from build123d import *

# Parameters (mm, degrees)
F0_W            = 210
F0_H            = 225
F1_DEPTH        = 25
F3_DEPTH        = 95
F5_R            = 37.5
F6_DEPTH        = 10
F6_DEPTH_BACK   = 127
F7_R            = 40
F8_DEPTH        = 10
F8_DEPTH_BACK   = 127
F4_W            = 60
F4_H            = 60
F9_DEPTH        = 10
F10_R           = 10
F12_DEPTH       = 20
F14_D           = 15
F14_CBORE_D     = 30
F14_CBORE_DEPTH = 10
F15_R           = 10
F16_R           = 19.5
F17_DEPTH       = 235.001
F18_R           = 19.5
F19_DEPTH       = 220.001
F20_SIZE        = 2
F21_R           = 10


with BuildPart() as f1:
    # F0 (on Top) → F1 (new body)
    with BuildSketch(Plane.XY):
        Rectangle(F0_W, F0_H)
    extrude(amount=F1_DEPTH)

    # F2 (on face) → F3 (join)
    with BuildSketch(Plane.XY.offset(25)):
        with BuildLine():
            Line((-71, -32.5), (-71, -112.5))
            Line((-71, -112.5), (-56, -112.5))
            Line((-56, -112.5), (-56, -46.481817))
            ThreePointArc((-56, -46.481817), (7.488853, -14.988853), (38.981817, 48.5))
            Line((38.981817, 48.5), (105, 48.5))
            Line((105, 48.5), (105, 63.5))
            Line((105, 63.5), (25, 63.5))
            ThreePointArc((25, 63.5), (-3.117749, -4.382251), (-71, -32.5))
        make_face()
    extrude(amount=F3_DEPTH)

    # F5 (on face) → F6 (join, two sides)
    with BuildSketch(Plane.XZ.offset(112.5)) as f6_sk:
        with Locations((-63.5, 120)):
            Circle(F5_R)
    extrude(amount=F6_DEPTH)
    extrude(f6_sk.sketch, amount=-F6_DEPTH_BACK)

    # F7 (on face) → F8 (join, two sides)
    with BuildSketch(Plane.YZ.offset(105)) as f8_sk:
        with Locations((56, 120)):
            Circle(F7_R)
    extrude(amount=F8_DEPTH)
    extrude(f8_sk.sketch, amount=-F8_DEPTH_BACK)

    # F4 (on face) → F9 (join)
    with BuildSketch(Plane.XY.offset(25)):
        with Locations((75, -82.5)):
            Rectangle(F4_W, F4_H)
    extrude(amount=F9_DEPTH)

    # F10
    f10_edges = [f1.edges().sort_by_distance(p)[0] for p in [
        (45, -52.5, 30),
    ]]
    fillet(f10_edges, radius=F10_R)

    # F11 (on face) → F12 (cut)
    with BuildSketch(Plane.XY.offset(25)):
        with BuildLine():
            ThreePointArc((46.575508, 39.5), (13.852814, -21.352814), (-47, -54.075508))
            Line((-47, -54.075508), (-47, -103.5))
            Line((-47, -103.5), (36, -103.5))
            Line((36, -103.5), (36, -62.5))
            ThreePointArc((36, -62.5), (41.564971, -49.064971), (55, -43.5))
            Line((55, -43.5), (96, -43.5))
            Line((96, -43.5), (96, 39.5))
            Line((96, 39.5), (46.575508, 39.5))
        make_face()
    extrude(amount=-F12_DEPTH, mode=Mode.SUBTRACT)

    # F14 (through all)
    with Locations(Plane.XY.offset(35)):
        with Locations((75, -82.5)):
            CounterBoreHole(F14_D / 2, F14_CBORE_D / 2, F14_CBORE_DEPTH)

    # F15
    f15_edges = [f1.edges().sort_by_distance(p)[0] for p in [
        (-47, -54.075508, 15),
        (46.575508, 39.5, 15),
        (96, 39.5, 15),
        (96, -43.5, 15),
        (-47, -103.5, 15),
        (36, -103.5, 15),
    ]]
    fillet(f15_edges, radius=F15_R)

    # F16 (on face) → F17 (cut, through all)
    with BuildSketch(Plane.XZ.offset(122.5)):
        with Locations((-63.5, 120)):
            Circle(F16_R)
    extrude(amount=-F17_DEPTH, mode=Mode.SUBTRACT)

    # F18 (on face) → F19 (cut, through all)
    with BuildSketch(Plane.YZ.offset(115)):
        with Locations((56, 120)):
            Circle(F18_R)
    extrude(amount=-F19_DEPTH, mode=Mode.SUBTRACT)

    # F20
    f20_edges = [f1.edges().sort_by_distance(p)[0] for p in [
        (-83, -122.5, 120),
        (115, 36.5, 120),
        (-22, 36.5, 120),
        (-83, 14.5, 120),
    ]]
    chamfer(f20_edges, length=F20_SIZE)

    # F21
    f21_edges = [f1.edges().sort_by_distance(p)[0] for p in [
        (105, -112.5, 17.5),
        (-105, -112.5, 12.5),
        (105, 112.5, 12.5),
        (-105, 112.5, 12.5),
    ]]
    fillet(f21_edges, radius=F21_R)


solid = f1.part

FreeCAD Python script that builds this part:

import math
import FreeCAD as App
import Part
import Sketcher


def edges_at(feature, points):
    """Names of the edges that pass closest to the given points."""
    edges = feature.Shape.Edges
    near = lambda p: min(range(len(edges)), key=lambda i: edges[i].distToShape(Part.Vertex(*p))[0])
    return sorted({f"Edge{near(p) + 1}" for p in points})

doc = App.newDocument("Part")
body = doc.addObject("PartDesign::Body", "Body")

sketch1 = body.newObject("Sketcher::SketchObject", "Sketch")
sketch1.AttachmentSupport = (doc.getObject("XY_Plane"), [""])
sketch1.MapMode = "FlatFace"
sketch1.addGeometry([
    Part.LineSegment(App.Vector(-105, 112.5, 0), App.Vector(-105, -112.5, 0)),
    Part.LineSegment(App.Vector(-105, -112.5, 0), App.Vector(105, -112.5, 0)),
    Part.LineSegment(App.Vector(105, -112.5, 0), App.Vector(105, 112.5, 0)),
    Part.LineSegment(App.Vector(105, 112.5, 0), App.Vector(-105, 112.5, 0)),
], False)
sketch1.addConstraint([
    Sketcher.Constraint("Coincident", 0, 2, 1, 1),
    Sketcher.Constraint("Coincident", 1, 2, 2, 1),
    Sketcher.Constraint("Coincident", 2, 2, 3, 1),
    Sketcher.Constraint("Coincident", 3, 2, 0, 1),
    Sketcher.Constraint("Vertical", 0),
    Sketcher.Constraint("Horizontal", 1),
    Sketcher.Constraint("Vertical", 2),
    Sketcher.Constraint("Horizontal", 3),
    Sketcher.Constraint("Symmetric", 0, 2, 2, 2, -1, 1),
    Sketcher.Constraint("DistanceX", 1, 1, 1, 2, 210.0),
    Sketcher.Constraint("DistanceY", 0, 2, 0, 1, 225.0),
])
pad1 = body.newObject("PartDesign::Pad", "Pad")
pad1.Profile = sketch1
pad1.Length = 25

sketch2 = body.newObject("Sketcher::SketchObject", "Sketch001")
sketch2.AttachmentSupport = (doc.getObject("XY_Plane"), [""])
sketch2.MapMode = "FlatFace"
sketch2.AttachmentOffset = App.Placement(App.Vector(0, 0, 25), App.Rotation())
sketch2.addGeometry([
    Part.LineSegment(App.Vector(-71, -32.5, 0), App.Vector(-71, -112.5, 0)),
    Part.LineSegment(App.Vector(-71, -112.5, 0), App.Vector(-56, -112.5, 0)),
    Part.LineSegment(App.Vector(-56, -112.5, 0), App.Vector(-56, -46.481817, 0)),
    Part.ArcOfCircle(Part.Circle(App.Vector(-71, 63.5, 0), App.Vector(0, 0, 1), 111), math.radians(-82.233566), math.radians(-7.766434)),
    Part.LineSegment(App.Vector(38.981817, 48.5, 0), App.Vector(105, 48.5, 0)),
    Part.LineSegment(App.Vector(105, 48.5, 0), App.Vector(105, 63.5, 0)),
    Part.LineSegment(App.Vector(105, 63.5, 0), App.Vector(25, 63.5, 0)),
    Part.ArcOfCircle(Part.Circle(App.Vector(-71, 63.5, 0), App.Vector(0, 0, 1), 96), math.radians(-90), math.radians(0)),
], False)
sketch2.addConstraint([
    Sketcher.Constraint("Coincident", 0, 2, 1, 1),
    Sketcher.Constraint("Coincident", 1, 2, 2, 1),
    Sketcher.Constraint("Coincident", 2, 2, 3, 1),
    Sketcher.Constraint("Coincident", 3, 2, 4, 1),
    Sketcher.Constraint("Coincident", 4, 2, 5, 1),
    Sketcher.Constraint("Coincident", 5, 2, 6, 1),
    Sketcher.Constraint("Coincident", 6, 2, 7, 2),
    Sketcher.Constraint("Coincident", 7, 1, 0, 1),
    Sketcher.Constraint("Vertical", 0),
    Sketcher.Constraint("Horizontal", 1),
    Sketcher.Constraint("Vertical", 2),
    Sketcher.Constraint("Horizontal", 4),
    Sketcher.Constraint("Vertical", 5),
    Sketcher.Constraint("Horizontal", 6),
    Sketcher.Constraint("Coincident", 7, 3, 3, 3),
    Sketcher.Constraint("Horizontal", 7, 3, 5, 2),
    Sketcher.Constraint("Vertical", 7, 3, 0, 2),
    Sketcher.Constraint("Equal", 6, 0),
    Sketcher.Constraint("Equal", 4, 2),
    Sketcher.Constraint("Radius", 3, 111.0),
    Sketcher.Constraint("Radius", 7, 96.0),
    Sketcher.Constraint("DistanceX", 1, 1, 1, 2, 15.0),
    Sketcher.Constraint("DistanceX", 6, 2, 6, 1, 80.0),
    Sketcher.Constraint("DistanceX", 3, 3, -1, 1, 71.0),
    Sketcher.Constraint("DistanceY", -1, 1, 3, 3, 63.5),
])
pad2 = body.newObject("PartDesign::Pad", "Pad001")
pad2.Profile = sketch2
pad2.Length = 95

sketch3 = body.newObject("Sketcher::SketchObject", "Sketch002")
sketch3.AttachmentSupport = (doc.getObject("XZ_Plane"), [""])
sketch3.MapMode = "FlatFace"
sketch3.AttachmentOffset = App.Placement(App.Vector(0, 0, 112.5), App.Rotation())
sketch3.addGeometry(Part.Circle(App.Vector(-63.5, 120, 0), App.Vector(0, 0, 1), 37.5), False)
sketch3.addConstraint([
    Sketcher.Constraint("Diameter", 0, 75.0),
    Sketcher.Constraint("DistanceY", -1, 1, 0, 3, 120.0),
    Sketcher.Constraint("DistanceX", 0, 3, -1, 1, 63.5),
])
pad3 = body.newObject("PartDesign::Pad", "Pad002")
pad3.Profile = sketch3
pad3.Type = "TwoLengths"
pad3.Length = 10
pad3.Length2 = 127

sketch4 = body.newObject("Sketcher::SketchObject", "Sketch003")
sketch4.AttachmentSupport = (doc.getObject("YZ_Plane"), [""])
sketch4.MapMode = "FlatFace"
sketch4.AttachmentOffset = App.Placement(App.Vector(0, 0, 105), App.Rotation())
sketch4.addGeometry(Part.Circle(App.Vector(56, 120, 0), App.Vector(0, 0, 1), 40), False)
sketch4.addConstraint([
    Sketcher.Constraint("Diameter", 0, 80.0),
    Sketcher.Constraint("DistanceX", -1, 1, 0, 3, 56.0),
    Sketcher.Constraint("DistanceY", -1, 1, 0, 3, 120.0),
])
pad4 = body.newObject("PartDesign::Pad", "Pad003")
pad4.Profile = sketch4
pad4.Type = "TwoLengths"
pad4.Length = 10
pad4.Length2 = 127

sketch5 = body.newObject("Sketcher::SketchObject", "Sketch004")
sketch5.AttachmentSupport = (doc.getObject("XY_Plane"), [""])
sketch5.MapMode = "FlatFace"
sketch5.AttachmentOffset = App.Placement(App.Vector(0, 0, 25), App.Rotation())
sketch5.addGeometry([
    Part.LineSegment(App.Vector(45, -52.5, 0), App.Vector(45, -112.5, 0)),
    Part.LineSegment(App.Vector(45, -112.5, 0), App.Vector(105, -112.5, 0)),
    Part.LineSegment(App.Vector(105, -112.5, 0), App.Vector(105, -52.5, 0)),
    Part.LineSegment(App.Vector(105, -52.5, 0), App.Vector(45, -52.5, 0)),
], False)
sketch5.addConstraint([
    Sketcher.Constraint("Coincident", 0, 2, 1, 1),
    Sketcher.Constraint("Coincident", 1, 2, 2, 1),
    Sketcher.Constraint("Coincident", 2, 2, 3, 1),
    Sketcher.Constraint("Coincident", 3, 2, 0, 1),
    Sketcher.Constraint("Vertical", 0),
    Sketcher.Constraint("Horizontal", 1),
    Sketcher.Constraint("Vertical", 2),
    Sketcher.Constraint("Horizontal", 3),
    Sketcher.Constraint("Equal", 3, 0),
    Sketcher.Constraint("DistanceX", 1, 1, 1, 2, 60.0),
    Sketcher.Constraint("DistanceX", -1, 1, 0, 2, 45.0),
    Sketcher.Constraint("DistanceY", 0, 2, -1, 1, 112.5),
])
pad5 = body.newObject("PartDesign::Pad", "Pad004")
pad5.Profile = sketch5
pad5.Length = 10
doc.recompute()

fillet = body.newObject("PartDesign::Fillet", "Fillet")
fillet.Base = (pad5, edges_at(pad5, [(45, -52.5, 30)]))
fillet.Radius = 10

sketch6 = body.newObject("Sketcher::SketchObject", "Sketch005")
sketch6.AttachmentSupport = (doc.getObject("XY_Plane"), [""])
sketch6.MapMode = "FlatFace"
sketch6.AttachmentOffset = App.Placement(App.Vector(0, 0, 25), App.Rotation())
sketch6.addGeometry([
    Part.ArcOfCircle(Part.Circle(App.Vector(-71, 63.5, 0), App.Vector(0, 0, 1), 120), math.radians(-78.463041), math.radians(-11.536959)),
    Part.LineSegment(App.Vector(-47, -54.075508, 0), App.Vector(-47, -103.5, 0)),
    Part.LineSegment(App.Vector(-47, -103.5, 0), App.Vector(36, -103.5, 0)),
    Part.LineSegment(App.Vector(36, -103.5, 0), App.Vector(36, -62.5, 0)),
    Part.ArcOfCircle(Part.Circle(App.Vector(54.999999, -62.499999, 0), App.Vector(0, 0, 1), 18.999999), math.radians(89.999998), math.radians(180.000002)),
    Part.LineSegment(App.Vector(55, -43.5, 0), App.Vector(96, -43.5, 0)),
    Part.LineSegment(App.Vector(96, -43.5, 0), App.Vector(96, 39.5, 0)),
    Part.LineSegment(App.Vector(96, 39.5, 0), App.Vector(46.575508, 39.5, 0)),
], False)
sketch6.addConstraint([
    Sketcher.Constraint("Coincident", 0, 1, 1, 1),
    Sketcher.Constraint("Coincident", 1, 2, 2, 1),
    Sketcher.Constraint("Coincident", 2, 2, 3, 1),
    Sketcher.Constraint("Tangent", 3, 2, 4, 2),
    Sketcher.Constraint("Tangent", 4, 1, 5, 1),
    Sketcher.Constraint("Coincident", 5, 2, 6, 1),
    Sketcher.Constraint("Coincident", 6, 2, 7, 1),
    Sketcher.Constraint("Coincident", 7, 2, 0, 2),
    Sketcher.Constraint("Vertical", 1),
    Sketcher.Constraint("Horizontal", 2),
    Sketcher.Constraint("Vertical", 3),
    Sketcher.Constraint("Horizontal", 5),
    Sketcher.Constraint("Vertical", 6),
    Sketcher.Constraint("Horizontal", 7),
    Sketcher.Constraint("Equal", 7, 1),
    Sketcher.Constraint("Equal", 5, 3),
    Sketcher.Constraint("Equal", 2, 6),
    Sketcher.Constraint("Radius", 0, 120.0),
    Sketcher.Constraint("Radius", 4, 18.999999),
    Sketcher.Constraint("DistanceX", 2, 1, 2, 2, 83.0),
    Sketcher.Constraint("DistanceX", 5, 1, 5, 2, 41.0),
    Sketcher.Constraint("DistanceX", 0, 3, -1, 1, 71.0),
    Sketcher.Constraint("DistanceX", -1, 1, 4, 3, 54.999999),
    Sketcher.Constraint("DistanceY", -1, 1, 0, 3, 63.5),
])
pocket1 = body.newObject("PartDesign::Pocket", "Pocket")
pocket1.Profile = sketch6
pocket1.Length = 20

sketch7 = body.newObject("Sketcher::SketchObject", "Sketch006")
sketch7.AttachmentSupport = (doc.getObject("XY_Plane"), [""])
sketch7.MapMode = "FlatFace"
sketch7.AttachmentOffset = App.Placement(App.Vector(0, 0, 35), App.Rotation())
sketch7.addGeometry(Part.Circle(App.Vector(75, -82.5, 0), App.Vector(0, 0, 1), 7.5), False)
sketch7.addConstraint([
    Sketcher.Constraint("Diameter", 0, 15.0),
    Sketcher.Constraint("DistanceX", -1, 1, 0, 3, 75.0),
    Sketcher.Constraint("DistanceY", 0, 3, -1, 1, 82.5),
])
doc.recompute()
hole = body.newObject("PartDesign::Hole", "Hole")
hole.Profile = sketch7
hole.ThreadType = "None"
hole.Diameter = 15
hole.DepthType = "ThroughAll"
hole.HoleCutType = "Counterbore"
hole.HoleCutDiameter = 30
hole.HoleCutDepth = 10
doc.recompute()

fillet2 = body.newObject("PartDesign::Fillet", "Fillet001")
fillet2.Base = (hole, edges_at(hole, [
    (-47, -54.076, 15),
    (46.576, 39.5, 15),
    (96, 39.5, 15),
    (96, -43.5, 15),
    (-47, -103.5, 15),
    (36, -103.5, 15),
]))
fillet2.Radius = 10

sketch8 = body.newObject("Sketcher::SketchObject", "Sketch007")
sketch8.AttachmentSupport = (doc.getObject("XZ_Plane"), [""])
sketch8.MapMode = "FlatFace"
sketch8.AttachmentOffset = App.Placement(App.Vector(0, 0, 122.5), App.Rotation())
sketch8.addGeometry(Part.Circle(App.Vector(-63.5, 120, 0), App.Vector(0, 0, 1), 19.5), False)
sketch8.addConstraint([
    Sketcher.Constraint("Diameter", 0, 39.0),
    Sketcher.Constraint("DistanceY", -1, 1, 0, 3, 120.0),
    Sketcher.Constraint("DistanceX", 0, 3, -1, 1, 63.5),
])
pocket2 = body.newObject("PartDesign::Pocket", "Pocket001")
pocket2.Profile = sketch8
pocket2.Type = "ThroughAll"

sketch9 = body.newObject("Sketcher::SketchObject", "Sketch008")
sketch9.AttachmentSupport = (doc.getObject("YZ_Plane"), [""])
sketch9.MapMode = "FlatFace"
sketch9.AttachmentOffset = App.Placement(App.Vector(0, 0, 115), App.Rotation())
sketch9.addGeometry(Part.Circle(App.Vector(56, 120, 0), App.Vector(0, 0, 1), 19.5), False)
sketch9.addConstraint([
    Sketcher.Constraint("Diameter", 0, 39.0),
    Sketcher.Constraint("DistanceX", -1, 1, 0, 3, 56.0),
    Sketcher.Constraint("DistanceY", -1, 1, 0, 3, 120.0),
])
pocket3 = body.newObject("PartDesign::Pocket", "Pocket002")
pocket3.Profile = sketch9
pocket3.Type = "ThroughAll"
doc.recompute()

chamfer = body.newObject("PartDesign::Chamfer", "Chamfer")
chamfer.Base = (pocket3, edges_at(pocket3, [
    (-83, -122.5, 120),
    (115, 36.5, 120),
    (-22, 36.5, 120),
    (-83, 14.5, 120),
]))
chamfer.Size = 2
doc.recompute()

fillet3 = body.newObject("PartDesign::Fillet", "Fillet002")
fillet3.Base = (chamfer, edges_at(chamfer, [
    (105, -112.5, 17.5),
    (-105, -112.5, 12.5),
    (105, 112.5, 12.5),
    (-105, 112.5, 12.5),
]))
fillet3.Radius = 10

doc.recompute()
